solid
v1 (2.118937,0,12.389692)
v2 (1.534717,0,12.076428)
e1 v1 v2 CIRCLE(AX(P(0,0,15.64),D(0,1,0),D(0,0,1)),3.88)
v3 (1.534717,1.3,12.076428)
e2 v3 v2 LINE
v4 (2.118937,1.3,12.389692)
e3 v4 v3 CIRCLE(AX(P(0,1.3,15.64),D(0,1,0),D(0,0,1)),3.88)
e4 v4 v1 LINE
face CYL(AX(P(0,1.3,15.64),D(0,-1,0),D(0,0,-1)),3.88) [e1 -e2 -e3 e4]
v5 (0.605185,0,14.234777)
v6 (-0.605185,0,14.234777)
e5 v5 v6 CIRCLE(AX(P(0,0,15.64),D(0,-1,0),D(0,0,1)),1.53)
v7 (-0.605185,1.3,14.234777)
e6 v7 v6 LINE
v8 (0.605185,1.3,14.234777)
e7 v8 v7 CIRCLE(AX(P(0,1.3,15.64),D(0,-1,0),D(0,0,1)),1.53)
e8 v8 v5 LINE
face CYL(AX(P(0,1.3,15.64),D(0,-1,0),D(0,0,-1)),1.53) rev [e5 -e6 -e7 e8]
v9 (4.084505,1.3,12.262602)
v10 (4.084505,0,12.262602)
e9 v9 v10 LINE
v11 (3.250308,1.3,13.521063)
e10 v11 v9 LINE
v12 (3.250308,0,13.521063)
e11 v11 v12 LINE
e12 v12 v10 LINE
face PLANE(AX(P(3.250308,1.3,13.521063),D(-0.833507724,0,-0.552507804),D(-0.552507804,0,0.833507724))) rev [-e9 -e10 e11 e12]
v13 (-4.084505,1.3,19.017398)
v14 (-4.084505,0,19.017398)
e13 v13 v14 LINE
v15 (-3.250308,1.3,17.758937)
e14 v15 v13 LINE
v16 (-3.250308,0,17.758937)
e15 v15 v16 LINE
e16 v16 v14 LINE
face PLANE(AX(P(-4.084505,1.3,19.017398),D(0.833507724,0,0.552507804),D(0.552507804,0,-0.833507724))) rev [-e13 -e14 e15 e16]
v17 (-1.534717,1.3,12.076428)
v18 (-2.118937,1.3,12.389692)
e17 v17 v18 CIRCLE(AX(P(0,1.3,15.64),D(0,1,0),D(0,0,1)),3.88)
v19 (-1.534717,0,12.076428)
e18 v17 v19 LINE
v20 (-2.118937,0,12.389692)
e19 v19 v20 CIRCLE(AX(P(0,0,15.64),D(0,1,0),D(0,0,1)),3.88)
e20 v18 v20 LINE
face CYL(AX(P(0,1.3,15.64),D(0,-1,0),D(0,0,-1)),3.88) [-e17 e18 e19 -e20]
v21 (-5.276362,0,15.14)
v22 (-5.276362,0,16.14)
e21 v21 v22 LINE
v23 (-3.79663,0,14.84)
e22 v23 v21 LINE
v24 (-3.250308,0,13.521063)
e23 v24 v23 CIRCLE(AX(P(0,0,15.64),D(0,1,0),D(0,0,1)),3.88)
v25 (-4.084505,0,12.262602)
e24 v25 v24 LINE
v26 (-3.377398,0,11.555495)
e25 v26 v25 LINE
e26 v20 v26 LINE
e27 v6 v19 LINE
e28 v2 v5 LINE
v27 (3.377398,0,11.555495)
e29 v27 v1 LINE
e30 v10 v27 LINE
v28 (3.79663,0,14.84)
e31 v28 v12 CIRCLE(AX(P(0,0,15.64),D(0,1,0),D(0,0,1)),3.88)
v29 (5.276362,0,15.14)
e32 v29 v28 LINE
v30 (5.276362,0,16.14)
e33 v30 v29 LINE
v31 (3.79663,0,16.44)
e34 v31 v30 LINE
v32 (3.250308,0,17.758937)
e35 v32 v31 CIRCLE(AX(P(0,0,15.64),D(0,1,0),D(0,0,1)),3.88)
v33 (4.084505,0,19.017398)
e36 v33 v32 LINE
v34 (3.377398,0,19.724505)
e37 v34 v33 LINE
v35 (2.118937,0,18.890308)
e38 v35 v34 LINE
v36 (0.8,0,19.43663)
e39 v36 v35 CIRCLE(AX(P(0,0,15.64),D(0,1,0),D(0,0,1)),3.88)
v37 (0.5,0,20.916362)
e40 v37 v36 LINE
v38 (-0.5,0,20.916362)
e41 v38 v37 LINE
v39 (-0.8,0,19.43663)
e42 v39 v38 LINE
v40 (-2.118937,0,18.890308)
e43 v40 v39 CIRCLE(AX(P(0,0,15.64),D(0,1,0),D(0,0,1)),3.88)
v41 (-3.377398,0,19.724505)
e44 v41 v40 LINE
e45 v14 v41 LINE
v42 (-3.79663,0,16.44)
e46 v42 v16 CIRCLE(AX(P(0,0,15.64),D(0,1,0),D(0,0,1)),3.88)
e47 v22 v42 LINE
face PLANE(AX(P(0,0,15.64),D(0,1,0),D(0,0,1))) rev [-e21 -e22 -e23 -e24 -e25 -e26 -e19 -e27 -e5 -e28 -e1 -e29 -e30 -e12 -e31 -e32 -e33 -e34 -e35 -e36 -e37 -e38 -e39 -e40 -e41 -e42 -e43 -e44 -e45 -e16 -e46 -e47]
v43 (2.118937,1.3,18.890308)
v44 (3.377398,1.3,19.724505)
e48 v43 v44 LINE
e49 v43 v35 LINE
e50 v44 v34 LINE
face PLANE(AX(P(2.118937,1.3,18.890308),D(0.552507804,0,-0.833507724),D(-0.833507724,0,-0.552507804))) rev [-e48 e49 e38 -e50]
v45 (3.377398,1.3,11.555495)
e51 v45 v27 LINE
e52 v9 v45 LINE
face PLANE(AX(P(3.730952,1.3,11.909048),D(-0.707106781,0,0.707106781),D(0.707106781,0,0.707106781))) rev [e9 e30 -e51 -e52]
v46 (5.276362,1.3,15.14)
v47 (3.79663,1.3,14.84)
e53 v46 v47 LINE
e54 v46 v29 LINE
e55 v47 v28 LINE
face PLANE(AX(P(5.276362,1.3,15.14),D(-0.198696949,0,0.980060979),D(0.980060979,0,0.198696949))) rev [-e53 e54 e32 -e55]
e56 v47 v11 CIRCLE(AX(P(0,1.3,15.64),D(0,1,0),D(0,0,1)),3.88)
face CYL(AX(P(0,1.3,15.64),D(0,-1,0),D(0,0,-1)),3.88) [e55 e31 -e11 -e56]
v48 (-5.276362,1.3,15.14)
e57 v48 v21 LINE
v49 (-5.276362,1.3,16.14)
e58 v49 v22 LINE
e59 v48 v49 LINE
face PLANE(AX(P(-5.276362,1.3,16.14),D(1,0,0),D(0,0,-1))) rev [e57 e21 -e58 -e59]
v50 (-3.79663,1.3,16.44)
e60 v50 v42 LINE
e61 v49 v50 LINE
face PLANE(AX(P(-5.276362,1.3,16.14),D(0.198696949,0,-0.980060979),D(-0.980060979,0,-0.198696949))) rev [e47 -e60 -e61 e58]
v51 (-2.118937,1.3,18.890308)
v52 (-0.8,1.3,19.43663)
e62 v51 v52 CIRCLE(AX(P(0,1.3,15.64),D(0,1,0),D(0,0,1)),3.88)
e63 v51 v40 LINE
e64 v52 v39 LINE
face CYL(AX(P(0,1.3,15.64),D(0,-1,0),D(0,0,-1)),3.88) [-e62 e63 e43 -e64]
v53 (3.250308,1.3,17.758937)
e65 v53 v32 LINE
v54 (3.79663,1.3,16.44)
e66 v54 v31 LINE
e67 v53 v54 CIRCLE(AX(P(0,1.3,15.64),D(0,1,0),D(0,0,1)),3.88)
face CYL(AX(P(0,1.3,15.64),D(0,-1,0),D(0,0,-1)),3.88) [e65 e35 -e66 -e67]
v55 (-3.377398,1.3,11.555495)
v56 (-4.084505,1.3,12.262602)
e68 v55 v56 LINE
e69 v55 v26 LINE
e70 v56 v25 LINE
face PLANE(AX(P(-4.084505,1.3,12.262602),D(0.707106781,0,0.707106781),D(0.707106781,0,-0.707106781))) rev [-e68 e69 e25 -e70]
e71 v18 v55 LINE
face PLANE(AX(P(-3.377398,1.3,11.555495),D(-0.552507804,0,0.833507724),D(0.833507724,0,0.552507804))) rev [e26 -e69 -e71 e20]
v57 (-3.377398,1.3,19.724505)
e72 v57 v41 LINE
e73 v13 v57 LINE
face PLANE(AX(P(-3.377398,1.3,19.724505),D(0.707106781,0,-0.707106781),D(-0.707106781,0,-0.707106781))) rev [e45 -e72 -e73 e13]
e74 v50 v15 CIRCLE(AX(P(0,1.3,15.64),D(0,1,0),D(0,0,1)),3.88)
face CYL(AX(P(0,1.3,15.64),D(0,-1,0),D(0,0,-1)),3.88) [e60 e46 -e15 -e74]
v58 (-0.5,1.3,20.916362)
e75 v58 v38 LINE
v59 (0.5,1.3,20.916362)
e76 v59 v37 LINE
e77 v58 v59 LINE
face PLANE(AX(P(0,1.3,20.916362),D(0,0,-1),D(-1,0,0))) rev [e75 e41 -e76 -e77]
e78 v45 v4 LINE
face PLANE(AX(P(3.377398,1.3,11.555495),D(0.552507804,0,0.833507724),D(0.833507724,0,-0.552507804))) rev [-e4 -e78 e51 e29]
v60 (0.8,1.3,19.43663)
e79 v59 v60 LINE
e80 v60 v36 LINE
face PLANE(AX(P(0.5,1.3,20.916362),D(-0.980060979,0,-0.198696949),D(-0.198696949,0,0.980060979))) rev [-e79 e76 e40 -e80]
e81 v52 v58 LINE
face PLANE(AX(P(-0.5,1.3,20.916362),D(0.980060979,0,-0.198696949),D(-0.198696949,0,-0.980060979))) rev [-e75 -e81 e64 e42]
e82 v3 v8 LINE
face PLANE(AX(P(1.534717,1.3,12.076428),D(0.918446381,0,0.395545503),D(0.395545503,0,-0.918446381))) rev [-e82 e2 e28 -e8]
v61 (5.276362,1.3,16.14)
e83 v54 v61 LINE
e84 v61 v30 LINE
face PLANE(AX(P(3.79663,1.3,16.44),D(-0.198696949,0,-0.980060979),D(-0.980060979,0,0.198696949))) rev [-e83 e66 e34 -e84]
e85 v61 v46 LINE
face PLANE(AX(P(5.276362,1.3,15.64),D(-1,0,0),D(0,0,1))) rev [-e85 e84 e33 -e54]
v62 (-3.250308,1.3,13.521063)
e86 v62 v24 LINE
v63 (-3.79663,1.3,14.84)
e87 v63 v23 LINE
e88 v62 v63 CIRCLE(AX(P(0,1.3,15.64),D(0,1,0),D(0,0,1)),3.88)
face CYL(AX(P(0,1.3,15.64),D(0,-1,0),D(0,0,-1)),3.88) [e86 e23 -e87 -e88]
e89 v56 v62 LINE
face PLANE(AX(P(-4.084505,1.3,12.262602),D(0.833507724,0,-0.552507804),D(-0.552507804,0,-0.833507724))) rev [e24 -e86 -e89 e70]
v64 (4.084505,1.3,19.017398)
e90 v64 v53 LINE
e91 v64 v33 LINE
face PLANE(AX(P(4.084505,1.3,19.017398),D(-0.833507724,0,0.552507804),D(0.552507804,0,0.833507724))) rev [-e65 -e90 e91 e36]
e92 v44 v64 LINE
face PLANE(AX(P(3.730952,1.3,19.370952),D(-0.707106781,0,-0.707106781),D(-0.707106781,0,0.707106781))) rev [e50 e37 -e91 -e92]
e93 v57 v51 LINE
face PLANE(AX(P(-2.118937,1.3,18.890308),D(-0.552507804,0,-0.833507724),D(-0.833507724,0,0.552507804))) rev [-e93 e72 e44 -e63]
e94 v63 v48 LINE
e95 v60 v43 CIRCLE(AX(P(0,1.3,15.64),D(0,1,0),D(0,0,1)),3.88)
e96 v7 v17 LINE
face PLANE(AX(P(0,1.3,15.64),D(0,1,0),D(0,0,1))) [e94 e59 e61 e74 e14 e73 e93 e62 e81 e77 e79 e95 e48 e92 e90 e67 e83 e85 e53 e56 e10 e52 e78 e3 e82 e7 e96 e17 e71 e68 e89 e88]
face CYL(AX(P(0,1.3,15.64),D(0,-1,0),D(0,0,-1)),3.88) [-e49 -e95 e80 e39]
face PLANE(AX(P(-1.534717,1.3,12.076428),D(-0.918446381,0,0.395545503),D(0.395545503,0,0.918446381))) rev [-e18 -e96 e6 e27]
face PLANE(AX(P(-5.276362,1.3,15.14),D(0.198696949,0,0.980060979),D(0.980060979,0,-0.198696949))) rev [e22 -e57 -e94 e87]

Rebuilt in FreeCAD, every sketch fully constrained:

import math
import FreeCAD as App
import Part
import Sketcher

V = App.Vector
Q = App.Units.Quantity

doc = App.newDocument("Part")
params = doc.addObject("Spreadsheet::Sheet", "Params")
for row, (alias, value) in enumerate([
    ("sketch1_width", "1 mm"),
    ("sketch1_radius", "3.88 mm"),
    ("sketch1_radius2", "1.53 mm"),
    ("sketch1_length", "0.5 mm"),
    ("pad1_length", "1.3 mm"),
], start=1):
    params.set(f"A{row}", alias)
    params.set(f"B{row}", "=" + value)
    params.setAlias(f"B{row}", alias)

body = doc.addObject("PartDesign::Body", "Body")

# Sketch on XZ plane
sketch1 = body.newObject("Sketcher::SketchObject", "Sketch")
sketch1.AttachmentSupport = (doc.getObject("XZ_Plane"), [""])
sketch1.MapMode = "FlatFace"
sketch1.addGeometry([
    Part.LineSegment(V(-0.61, 14.23, 0), V(-1.53, 12.08, 0)),  # 0
    Part.ArcOfCircle(Part.Circle(V(0, 15.64, 0), V(0, 0, 1), 3.88), math.radians(-123.1), math.radians(-113.3)),  # 1
    Part.LineSegment(V(-2.12, 12.39, 0), V(-3.38, 11.56, 0)),  # 2
    Part.LineSegment(V(-3.38, 11.56, 0), V(-3.73, 11.91, 0)),  # 3
    Part.LineSegment(V(-3.73, 11.91, 0), V(-4.08, 12.26, 0)),  # 4
    Part.LineSegment(V(-4.08, 12.26, 0), V(-3.25, 13.52, 0)),  # 5
    Part.ArcOfCircle(Part.Circle(V(0, 15.64, 0), V(0, 0, 1), 3.88), math.radians(-168), math.radians(-147)),  # 6
    Part.LineSegment(V(-3.8, 14.84, 0), V(-5.28, 15.14, 0)),  # 7
    Part.LineSegment(V(-5.28, 15.14, 0), V(-5.28, 16.14, 0)),  # 8
    Part.LineSegment(V(-5.28, 16.14, 0), V(-3.8, 16.44, 0)),  # 9
    Part.ArcOfCircle(Part.Circle(V(0, 15.64, 0), V(0, 0, 1), 3.88), math.radians(147), math.radians(168)),  # 10
    Part.LineSegment(V(-3.25, 17.76, 0), V(-4.08, 19.02, 0)),  # 11
    Part.LineSegment(V(-4.08, 19.02, 0), V(-3.73, 19.37, 0)),  # 12
    Part.LineSegment(V(-3.73, 19.37, 0), V(-3.38, 19.72, 0)),  # 13
    Part.LineSegment(V(-3.38, 19.72, 0), V(-2.12, 18.89, 0)),  # 14
    Part.ArcOfCircle(Part.Circle(V(0, 15.64, 0), V(0, 0, 1), 3.88), math.radians(102), math.radians(123)),  # 15
    Part.LineSegment(V(-0.8, 19.44, 0), V(-0.5, 20.92, 0)),  # 16
    Part.LineSegment(V(-0.5, 20.92, 0), V(0.5, 20.92, 0)),  # 17
    Part.LineSegment(V(0.5, 20.92, 0), V(0.8, 19.44, 0)),  # 18
    Part.ArcOfCircle(Part.Circle(V(0, 15.64, 0), V(0, 0, 1), 3.88), math.radians(57), math.radians(78)),  # 19
    Part.LineSegment(V(2.12, 18.89, 0), V(3.38, 19.72, 0)),  # 20
    Part.LineSegment(V(3.38, 19.72, 0), V(3.73, 19.37, 0)),  # 21
    Part.LineSegment(V(3.73, 19.37, 0), V(4.08, 19.02, 0)),  # 22
    Part.LineSegment(V(4.08, 19.02, 0), V(3.25, 17.76, 0)),  # 23
    Part.ArcOfCircle(Part.Circle(V(0, 15.64, 0), V(0, 0, 1), 3.88), math.radians(12), math.radians(33)),  # 24
    Part.LineSegment(V(3.8, 16.44, 0), V(5.28, 16.14, 0)),  # 25
    Part.LineSegment(V(5.28, 16.14, 0), V(5.28, 15.14, 0)),  # 26
    Part.LineSegment(V(5.28, 15.14, 0), V(3.8, 14.84, 0)),  # 27
    Part.ArcOfCircle(Part.Circle(V(0, 15.64, 0), V(0, 0, 1), 3.88), math.radians(-33), math.radians(-12)),  # 28
    Part.LineSegment(V(3.25, 13.52, 0), V(4.08, 12.26, 0)),  # 29
    Part.LineSegment(V(4.08, 12.26, 0), V(3.73, 11.91, 0)),  # 30
    Part.LineSegment(V(3.73, 11.91, 0), V(3.38, 11.56, 0)),  # 31
    Part.LineSegment(V(3.38, 11.56, 0), V(2.12, 12.39, 0)),  # 32
    Part.ArcOfCircle(Part.Circle(V(0, 15.64, 0), V(0, 0, 1), 3.88), math.radians(-66.7), math.radians(-56.9)),  # 33
    Part.LineSegment(V(1.53, 12.08, 0), V(0.61, 14.23, 0)),  # 34
    Part.ArcOfCircle(Part.Circle(V(0, 15.64, 0), V(0, 0, 1), 1.53), math.radians(-67), math.radians(247)),  # 35
], False)
sketch1.addConstraint([
    Sketcher.Constraint("Coincident", 0, 2, 1, 2),
    Sketcher.Constraint("Coincident", 1, 1, 2, 1),
    Sketcher.Constraint("Coincident", 2, 2, 3, 1),
    Sketcher.Constraint("Coincident", 3, 2, 4, 1),
    Sketcher.Constraint("Coincident", 4, 2, 5, 1),
    Sketcher.Constraint("Coincident", 5, 2, 6, 2),
    Sketcher.Constraint("Coincident", 6, 1, 7, 1),
    Sketcher.Constraint("Coincident", 7, 2, 8, 1),
    Sketcher.Constraint("Coincident", 8, 2, 9, 1),
    Sketcher.Constraint("Coincident", 9, 2, 10, 2),
    Sketcher.Constraint("Coincident", 10, 1, 11, 1),
    Sketcher.Constraint("Coincident", 11, 2, 12, 1),
    Sketcher.Constraint("Coincident", 12, 2, 13, 1),
    Sketcher.Constraint("Coincident", 13, 2, 14, 1),
    Sketcher.Constraint("Coincident", 14, 2, 15, 2),
    Sketcher.Constraint("Coincident", 15, 1, 16, 1),
    Sketcher.Constraint("Coincident", 16, 2, 17, 1),
    Sketcher.Constraint("Coincident", 17, 2, 18, 1),
    Sketcher.Constraint("Coincident", 18, 2, 19, 2),
    Sketcher.Constraint("Coincident", 19, 1, 20, 1),
    Sketcher.Constraint("Coincident", 20, 2, 21, 1),
    Sketcher.Constraint("Coincident", 21, 2, 22, 1),
    Sketcher.Constraint("Coincident", 22, 2, 23, 1),
    Sketcher.Constraint("Coincident", 23, 2, 24, 2),
    Sketcher.Constraint("Coincident", 24, 1, 25, 1),
    Sketcher.Constraint("Coincident", 25, 2, 26, 1),
    Sketcher.Constraint("Coincident", 26, 2, 27, 1),
    Sketcher.Constraint("Coincident", 27, 2, 28, 2),
    Sketcher.Constraint("Coincident", 28, 1, 29, 1),
    Sketcher.Constraint("Coincident", 29, 2, 30, 1),
    Sketcher.Constraint("Coincident", 30, 2, 31, 1),
    Sketcher.Constraint("Coincident", 31, 2, 32, 1),
    Sketcher.Constraint("Coincident", 32, 2, 33, 2),
    Sketcher.Constraint("Coincident", 33, 1, 34, 1),
    Sketcher.Constraint("Coincident", 34, 2, 35, 1),
    Sketcher.Constraint("Coincident", 35, 2, 0, 1),
    Sketcher.Constraint("Vertical", 8),
    Sketcher.Constraint("Horizontal", 17),
    Sketcher.Constraint("Vertical", 26),
    Sketcher.Constraint("Coincident", 6, 3, 1, 3),
    Sketcher.Constraint("Coincident", 10, 3, 1, 3),
    Sketcher.Constraint("Coincident", 15, 3, 1, 3),
    Sketcher.Constraint("Coincident", 19, 3, 1, 3),
    Sketcher.Constraint("Coincident", 24, 3, 1, 3),
    Sketcher.Constraint("Coincident", 28, 3, 1, 3),
    Sketcher.Constraint("Coincident", 33, 3, 1, 3),
    Sketcher.Constraint("Coincident", 35, 3, 1, 3),
    Sketcher.Constraint("Equal", 1, 6),
    Sketcher.Constraint("Equal", 6, 10),
    Sketcher.Constraint("Equal", 10, 15),
    Sketcher.Constraint("Equal", 15, 19),
    Sketcher.Constraint("Equal", 19, 24),
    Sketcher.Constraint("Equal", 24, 28),
    Sketcher.Constraint("Equal", 28, 33),
    Sketcher.Constraint("Symmetric", 15, 1, 18, 2, -2),
    Sketcher.Constraint("Symmetric", 13, 2, 20, 2, -2),
    Sketcher.Constraint("Symmetric", 12, 2, 21, 2, -2),
    Sketcher.Constraint("Symmetric", 11, 2, 22, 2, -2),
    Sketcher.Constraint("Symmetric", 8, 2, 25, 2, -2),
    Sketcher.Constraint("Symmetric", 4, 2, 29, 2, -2),
    Sketcher.Constraint("Symmetric", 3, 2, 30, 2, -2),
    Sketcher.Constraint("Symmetric", 2, 2, 31, 2, -2),
    Sketcher.Constraint("Parallel", 3, 4),
    Sketcher.Constraint("Perpendicular", 2, 11),
    Sketcher.Constraint("Perpendicular", 4, 12),
    Sketcher.Constraint("Parallel", 12, 13),
    Sketcher.Constraint("Perpendicular", 5, 14),
    Sketcher.Constraint("Perpendicular", 7, 16),
    Sketcher.Constraint("Perpendicular", 9, 18),
    Sketcher.Constraint("Perpendicular", 11, 20),
    Sketcher.Constraint("Perpendicular", 13, 21),
    Sketcher.Constraint("Perpendicular", 14, 23),
    Sketcher.Constraint("Perpendicular", 16, 25),
    Sketcher.Constraint("Perpendicular", 18, 27),
    Sketcher.Constraint("Perpendicular", 20, 29),
    Sketcher.Constraint("Perpendicular", 23, 32),
    Sketcher.Constraint("Horizontal", 14, 2, 19, 1),
    Sketcher.Constraint("Horizontal", 9, 2, 24, 1),
    Sketcher.Constraint("Horizontal", 7, 2, 26, 2),
    Sketcher.Constraint("Horizontal", 0, 2, 33, 1),
    Sketcher.Constraint("Horizontal", 34, 2, 35, 2),
    Sketcher.Constraint("Vertical", 6, 1, 9, 2),
    Sketcher.Constraint("Vertical", 5, 2, 10, 1),
    Sketcher.Constraint("Vertical", 4, 2, 11, 2),
    Sketcher.Constraint("Vertical", 3, 2, 12, 2),
    Sketcher.Constraint("Vertical", 2, 2, 13, 2),
    Sketcher.Constraint("Equal", 17, 8),
    Sketcher.Constraint("Equal", 3, 4),
    Sketcher.Constraint("Equal", 2, 5),
    Sketcher.Constraint("Equal", 5, 7),
    Sketcher.Constraint("Equal", 14, 16),
    Sketcher.Constraint("DistanceX", 17, 1, 17, 2, 1.0),
    Sketcher.Constraint("Radius", 1, 3.88),
    Sketcher.Constraint("Radius", 35, 1.53),
    Sketcher.Constraint("Angle", 0, Q("-113.3 deg")),
    Sketcher.Constraint("Distance", 3, 0.5),
    Sketcher.Constraint("DistanceX", 15, 1, -1, 1, 0.8),
    Sketcher.Constraint("DistanceY", -1, 1, 1, 3, 15.64),
    Sketcher.Constraint("DistanceX", 2, 2, -1, 1, 3.377398),
    Sketcher.Constraint("DistanceY", -1, 1, 0, 2, 12.076428),
    Sketcher.Constraint("DistanceY", -1, 1, 1, 1, 12.389692),
])
sketch1.setExpression("Constraints[91]", "Params.sketch1_width")
sketch1.setExpression("Constraints[92]", "Params.sketch1_radius")
sketch1.setExpression("Constraints[93]", "Params.sketch1_radius2")
sketch1.setExpression("Constraints[95]", "Params.sketch1_length")
pad1 = body.newObject("PartDesign::Pad", "Pad")
pad1.Profile = sketch1
pad1.setExpression("Length", "Params.pad1_length")
pad1.Reversed = True

doc.recompute()
